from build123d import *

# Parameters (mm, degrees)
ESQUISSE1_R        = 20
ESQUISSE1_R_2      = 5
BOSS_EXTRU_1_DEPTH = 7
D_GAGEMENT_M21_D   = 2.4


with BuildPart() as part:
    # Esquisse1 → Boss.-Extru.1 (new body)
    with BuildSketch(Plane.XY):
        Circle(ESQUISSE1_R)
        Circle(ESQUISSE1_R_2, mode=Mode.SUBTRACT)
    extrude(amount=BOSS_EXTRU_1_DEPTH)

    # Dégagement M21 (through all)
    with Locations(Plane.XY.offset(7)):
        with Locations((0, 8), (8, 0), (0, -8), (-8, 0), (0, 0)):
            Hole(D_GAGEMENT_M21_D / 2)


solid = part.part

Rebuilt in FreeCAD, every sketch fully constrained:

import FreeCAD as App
import Part
import Sketcher
Q = App.Units.Quantity

doc = App.newDocument("Part")
body = doc.addObject("PartDesign::Body", "Body")

# Sketch on XY plane
sketch1 = body.newObject("Sketcher::SketchObject", "Sketch")
sketch1.AttachmentSupport = (doc.getObject("XY_Plane"), [""])
sketch1.MapMode = "FlatFace"
sketch1.addGeometry(Part.Circle(App.Vector(0, 0, 0), App.Vector(0, 0, 1), 20), False)
sketch1.addGeometry(Part.Circle(App.Vector(0, 0, 0), App.Vector(0, 0, 1), 5), False)
sketch1.addConstraint(Sketcher.Constraint("Coincident", 0, 3, -1, 1))
sketch1.addConstraint(Sketcher.Constraint("Coincident", 1, 3, -1, 1))
sketch1.addConstraint(Sketcher.Constraint("Diameter", 0, Q("40 mm")))
sketch1.addConstraint(Sketcher.Constraint("Diameter", 1, Q("10 mm")))
pad1 = body.newObject("PartDesign::Pad", "Pad")
pad1.Profile = sketch1
pad1.Length = 7

# Sketch on XY plane
sketch2 = body.newObject("Sketcher::SketchObject", "Sketch001")
sketch2.AttachmentSupport = (doc.getObject("XY_Plane"), [""])
sketch2.MapMode = "FlatFace"
sketch2.AttachmentOffset = App.Placement(App.Vector(0, 0, 7), App.Rotation())
sketch2.addGeometry(Part.Circle(App.Vector(0, 8, 0), App.Vector(0, 0, 1), 1.2), False)
sketch2.addGeometry(Part.Circle(App.Vector(8, 0, 0), App.Vector(0, 0, 1), 1.2), False)
sketch2.addGeometry(Part.Circle(App.Vector(0, -8, 0), App.Vector(0, 0, 1), 1.2), False)
sketch2.addGeometry(Part.Circle(App.Vector(-8, 0, 0), App.Vector(0, 0, 1), 1.2), False)
sketch2.addGeometry(Part.Circle(App.Vector(0, 0, 0), App.Vector(0, 0, 1), 1.2), False)
sketch2.addConstraint(Sketcher.Constraint("Coincident", 4, 3, -1, 1))
sketch2.addConstraint(Sketcher.Constraint("Equal", 0, 1))
sketch2.addConstraint(Sketcher.Constraint("Equal", 1, 2))
sketch2.addConstraint(Sketcher.Constraint("Equal", 2, 3))
sketch2.addConstraint(Sketcher.Constraint("Equal", 3, 4))
sketch2.addConstraint(Sketcher.Constraint("Symmetric", 0, 3, 2, 3, -1, 1))
sketch2.addConstraint(Sketcher.Constraint("Symmetric", 1, 3, 3, 3, -1, 1))
sketch2.addConstraint(Sketcher.Constraint("PointOnObject", 0, 3, -2))
sketch2.addConstraint(Sketcher.Constraint("PointOnObject", 1, 3, -1))
sketch2.addConstraint(Sketcher.Constraint("Diameter", 0, Q("2.4 mm")))
sketch2.addConstraint(Sketcher.Constraint("DistanceY", -1, 1, 0, 3, Q("8 mm")))
sketch2.addConstraint(Sketcher.Constraint("DistanceX", -1, 1, 1, 3, Q("8 mm")))
doc.recompute()
hole = body.newObject("PartDesign::Hole", "Hole")
hole.Profile = sketch2
hole.ThreadType = "None"
hole.Diameter = 2.4
hole.DepthType = "ThroughAll"

doc.recompute()
